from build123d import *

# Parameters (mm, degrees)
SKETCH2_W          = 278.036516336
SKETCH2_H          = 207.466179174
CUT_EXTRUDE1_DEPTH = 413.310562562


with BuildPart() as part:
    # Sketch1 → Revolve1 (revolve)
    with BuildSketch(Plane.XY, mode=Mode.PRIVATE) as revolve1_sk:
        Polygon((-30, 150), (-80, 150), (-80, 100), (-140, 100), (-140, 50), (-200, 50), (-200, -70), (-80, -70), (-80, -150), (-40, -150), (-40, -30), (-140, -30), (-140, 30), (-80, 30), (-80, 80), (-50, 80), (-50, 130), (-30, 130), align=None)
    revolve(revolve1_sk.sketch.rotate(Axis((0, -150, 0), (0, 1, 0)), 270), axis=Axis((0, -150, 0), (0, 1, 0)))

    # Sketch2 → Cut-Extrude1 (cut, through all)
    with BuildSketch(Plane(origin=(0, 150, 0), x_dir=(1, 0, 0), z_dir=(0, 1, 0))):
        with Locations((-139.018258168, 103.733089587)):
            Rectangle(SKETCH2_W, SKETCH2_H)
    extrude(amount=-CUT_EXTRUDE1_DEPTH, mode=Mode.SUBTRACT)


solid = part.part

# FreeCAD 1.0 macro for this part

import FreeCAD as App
import Part
import Sketcher
Q = App.Units.Quantity


def add_polygon(sketch, points):
    """Adds a closed chain of lines whose ends are joined by coincident constraints."""
    first, n = sketch.GeometryCount, len(points)
    for a, b in zip(points, points[1:] + points[:1]):
        sketch.addGeometry(Part.LineSegment(App.Vector(*a, 0), App.Vector(*b, 0)), False)
    for i in range(n):
        sketch.addConstraint(Sketcher.Constraint("Coincident", first + i, 2, first + (i + 1) % n, 1))

doc = App.newDocument("Part")
params = doc.addObject("Spreadsheet::Sheet", "Params")
for row, (alias, value) in enumerate([
    ("sketch1_width", "50 mm"),
    ("sketch1_width2", "60 mm"),
    ("sketch1_width3", "40 mm"),
    ("sketch1_width4", "30 mm"),
    ("revolution_angle", "360 deg"),
], start=1):
    params.set(f"A{row}", alias)
    params.set(f"B{row}", "=" + value)
    params.setAlias(f"B{row}", alias)

body = doc.addObject("PartDesign::Body", "Body")

sketch1 = body.newObject("Sketcher::SketchObject", "Sketch")
sketch1.AttachmentSupport = (doc.getObject("XY_Plane"), [""])
sketch1.MapMode = "FlatFace"
add_polygon(sketch1, [(-30, 150), (-80, 150), (-80, 100), (-140, 100), (-140, 50), (-200, 50), (-200, -70), (-80, -70), (-80, -150), (-40, -150), (-40, -30), (-140, -30), (-140, 30), (-80, 30), (-80, 80), (-50, 80), (-50, 130), (-30, 130)])
sketch1.addConstraint(Sketcher.Constraint("Horizontal", 0))
sketch1.addConstraint(Sketcher.Constraint("Vertical", 1))
sketch1.addConstraint(Sketcher.Constraint("Horizontal", 2))
sketch1.addConstraint(Sketcher.Constraint("Vertical", 3))
sketch1.addConstraint(Sketcher.Constraint("Horizontal", 4))
sketch1.addConstraint(Sketcher.Constraint("Vertical", 5))
sketch1.addConstraint(Sketcher.Constraint("Horizontal", 6))
sketch1.addConstraint(Sketcher.Constraint("Vertical", 7))
sketch1.addConstraint(Sketcher.Constraint("Horizontal", 8))
sketch1.addConstraint(Sketcher.Constraint("Vertical", 9))
sketch1.addConstraint(Sketcher.Constraint("Horizontal", 10))
sketch1.addConstraint(Sketcher.Constraint("Vertical", 11))
sketch1.addConstraint(Sketcher.Constraint("Horizontal", 12))
sketch1.addConstraint(Sketcher.Constraint("Vertical", 13))
sketch1.addConstraint(Sketcher.Constraint("Horizontal", 14))
sketch1.addConstraint(Sketcher.Constraint("Vertical", 15))
sketch1.addConstraint(Sketcher.Constraint("Horizontal", 16))
sketch1.addConstraint(Sketcher.Constraint("Vertical", 17))
sketch1.addConstraint(Sketcher.Constraint("Symmetric", 0, 2, 7, 2, -1))
sketch1.addConstraint(Sketcher.Constraint("Vertical", 3, 2, 10, 2))
sketch1.addConstraint(Sketcher.Constraint("Vertical", 7, 2, 12, 2))
sketch1.addConstraint(Sketcher.Constraint("Equal", 2, 4))
sketch1.addConstraint(Sketcher.Constraint("Equal", 0, 1))
sketch1.addConstraint(Sketcher.Constraint("Equal", 1, 3))
sketch1.addConstraint(Sketcher.Constraint("Equal", 6, 5))
sketch1.addConstraint(Sketcher.Constraint("Equal", 5, 9))
sketch1.addConstraint(Sketcher.Constraint("Equal", 12, 11))
sketch1.addConstraint(Sketcher.Constraint("Equal", 3, 13))
sketch1.addConstraint(Sketcher.Constraint("Equal", 13, 15))
sketch1.addConstraint(Sketcher.Constraint("Equal", 16, 17))
sketch1.addConstraint(Sketcher.Constraint("DistanceX", 0, 2, 0, 1, Q("50 mm")))
sketch1.addConstraint(Sketcher.Constraint("DistanceX", 2, 2, 2, 1, Q("60 mm")))
sketch1.addConstraint(Sketcher.Constraint("DistanceX", 8, 1, 8, 2, Q("40 mm")))
sketch1.addConstraint(Sketcher.Constraint("DistanceX", 14, 1, 14, 2, Q("30 mm")))
sketch1.addConstraint(Sketcher.Constraint("DistanceX", 0, 2, -1, 1, Q("80 mm")))
sketch1.setExpression("Constraints[48]", "Params.sketch1_width")
sketch1.setExpression("Constraints[49]", "Params.sketch1_width2")
sketch1.setExpression("Constraints[50]", "Params.sketch1_width3")
sketch1.setExpression("Constraints[51]", "Params.sketch1_width4")
revolution = body.newObject("PartDesign::Revolution", "Revolution")
revolution.Profile = sketch1
revolution.ReferenceAxis = (sketch1, ["V_Axis"])
revolution.setExpression("Angle", "Params.revolution_angle")

sketch2 = body.newObject("Sketcher::SketchObject", "Sketch001")
sketch2.AttachmentSupport = (doc.getObject("XZ_Plane"), [""])
sketch2.MapMode = "FlatFace"
sketch2.AttachmentOffset = App.Placement(App.Vector(0, 0, -150), App.Rotation())
add_polygon(sketch2, [(-278.036516, -207.466179), (-278.036516, 0), (0, 0), (0, -207.466179)])
sketch2.addConstraint(Sketcher.Constraint("Vertical", 0))
sketch2.addConstraint(Sketcher.Constraint("Horizontal", 1))
sketch2.addConstraint(Sketcher.Constraint("Vertical", 2))
sketch2.addConstraint(Sketcher.Constraint("Horizontal", 3))
sketch2.addConstraint(Sketcher.Constraint("Coincident", 1, 2, -1, 1))
sketch2.addConstraint(Sketcher.Constraint("DistanceY", 0, 1, 0, 2, Q("207.466179 mm")))
sketch2.addConstraint(Sketcher.Constraint("DistanceX", 1, 1, 1, 2, Q("278.036516 mm")))
pocket1 = body.newObject("PartDesign::Pocket", "Pocket")
pocket1.Profile = sketch2
pocket1.Type = "ThroughAll"
pocket1.Reversed = True

doc.recompute()
